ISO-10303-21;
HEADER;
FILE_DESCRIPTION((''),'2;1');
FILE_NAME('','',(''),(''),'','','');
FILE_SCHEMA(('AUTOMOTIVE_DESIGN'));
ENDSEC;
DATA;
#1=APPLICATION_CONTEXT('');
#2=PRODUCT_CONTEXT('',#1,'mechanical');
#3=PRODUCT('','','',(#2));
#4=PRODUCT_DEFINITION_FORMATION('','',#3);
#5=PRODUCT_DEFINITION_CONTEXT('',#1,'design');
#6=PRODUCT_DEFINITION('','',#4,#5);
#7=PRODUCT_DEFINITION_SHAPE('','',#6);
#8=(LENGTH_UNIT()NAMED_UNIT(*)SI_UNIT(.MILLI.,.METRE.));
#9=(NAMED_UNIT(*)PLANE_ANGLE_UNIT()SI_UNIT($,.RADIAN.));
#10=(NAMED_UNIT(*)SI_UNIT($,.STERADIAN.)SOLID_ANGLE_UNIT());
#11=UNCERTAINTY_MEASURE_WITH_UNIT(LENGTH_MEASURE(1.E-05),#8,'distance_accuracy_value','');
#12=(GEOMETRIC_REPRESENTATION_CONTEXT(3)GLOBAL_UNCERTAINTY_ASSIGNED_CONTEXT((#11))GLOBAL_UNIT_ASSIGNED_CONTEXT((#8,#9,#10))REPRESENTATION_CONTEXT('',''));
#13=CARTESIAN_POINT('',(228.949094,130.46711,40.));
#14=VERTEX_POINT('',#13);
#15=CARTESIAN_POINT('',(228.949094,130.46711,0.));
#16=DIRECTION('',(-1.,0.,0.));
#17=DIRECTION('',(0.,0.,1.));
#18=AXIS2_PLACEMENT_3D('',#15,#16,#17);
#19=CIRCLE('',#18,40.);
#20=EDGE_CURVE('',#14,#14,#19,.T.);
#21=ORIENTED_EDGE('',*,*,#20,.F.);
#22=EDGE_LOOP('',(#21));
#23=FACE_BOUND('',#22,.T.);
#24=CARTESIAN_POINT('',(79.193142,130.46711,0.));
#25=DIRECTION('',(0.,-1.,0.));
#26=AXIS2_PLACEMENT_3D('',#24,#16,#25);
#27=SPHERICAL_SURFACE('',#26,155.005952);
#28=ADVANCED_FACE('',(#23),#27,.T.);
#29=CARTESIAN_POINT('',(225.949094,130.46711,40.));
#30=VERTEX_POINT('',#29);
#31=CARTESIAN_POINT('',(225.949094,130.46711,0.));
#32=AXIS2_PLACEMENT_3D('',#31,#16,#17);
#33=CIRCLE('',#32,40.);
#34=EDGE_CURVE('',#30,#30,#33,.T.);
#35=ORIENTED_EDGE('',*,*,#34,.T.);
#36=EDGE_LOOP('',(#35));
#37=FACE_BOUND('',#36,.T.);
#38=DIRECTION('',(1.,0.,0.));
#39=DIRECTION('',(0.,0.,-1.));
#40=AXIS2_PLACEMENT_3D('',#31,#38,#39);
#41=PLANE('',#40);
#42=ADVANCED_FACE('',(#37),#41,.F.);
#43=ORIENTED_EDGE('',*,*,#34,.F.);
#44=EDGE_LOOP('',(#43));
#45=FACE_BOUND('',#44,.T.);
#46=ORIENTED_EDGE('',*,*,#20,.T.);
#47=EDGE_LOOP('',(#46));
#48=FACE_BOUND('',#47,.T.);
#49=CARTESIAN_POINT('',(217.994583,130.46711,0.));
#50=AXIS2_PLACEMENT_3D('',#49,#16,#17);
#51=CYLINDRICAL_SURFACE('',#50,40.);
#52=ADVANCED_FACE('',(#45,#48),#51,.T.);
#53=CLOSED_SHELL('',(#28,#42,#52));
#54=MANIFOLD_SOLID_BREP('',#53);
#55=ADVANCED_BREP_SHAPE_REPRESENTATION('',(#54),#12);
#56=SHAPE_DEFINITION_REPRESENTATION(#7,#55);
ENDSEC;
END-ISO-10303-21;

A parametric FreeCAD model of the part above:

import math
import FreeCAD as App
import Part
import Sketcher

V = App.Vector
Q = App.Units.Quantity

doc = App.newDocument("Part")
params = doc.addObject("Spreadsheet::Sheet", "Params")
for row, (alias, value) in enumerate([
    ("sketch1_width", "3 mm"),
    ("sketch1_height", "40 mm"),
    ("sketch1_width2", "8.25 mm"),
    ("revolution_angle", "360 deg"),
], start=1):
    params.set(f"A{row}", alias)
    params.set(f"B{row}", "=" + value)
    params.setAlias(f"B{row}", alias)

body = doc.addObject("PartDesign::Body", "Body")

# Sketch on XY plane
sketch1 = doc.addObject("Sketcher::SketchObject", "Sketch")
body.addObject(sketch1)
sketch1.AttachmentSupport = (doc.XY_Plane, [""])
sketch1.MapMode = "FlatFace"
sketch1.addGeometry(Part.LineSegment(V(225.9, 170.5, 0), V(225.9, 130.5, 0)), False)
sketch1.addGeometry(Part.LineSegment(V(225.9, 130.5, 0), V(234.2, 130.5, 0)), False)
sketch1.addGeometry(Part.ArcOfCircle(Part.Circle(V(79.2, 130.5, 0), V(0, 0, 1), 155), math.radians(0), math.radians(14.95)), False)
sketch1.addGeometry(Part.LineSegment(V(228.9, 170.5, 0), V(225.9, 170.5, 0)), False)
sketch1.addGeometry(Part.LineSegment(V(79.2, 130.5, 0), V(234.2, 130.5, 0)), True)  # axis
sketch1.addConstraint(Sketcher.Constraint("Coincident", 0, 2, 1, 1))
sketch1.addConstraint(Sketcher.Constraint("Coincident", 1, 2, 2, 1))
sketch1.addConstraint(Sketcher.Constraint("Coincident", 2, 2, 3, 1))
sketch1.addConstraint(Sketcher.Constraint("Coincident", 3, 2, 0, 1))
sketch1.addConstraint(Sketcher.Constraint("Vertical", 0))
sketch1.addConstraint(Sketcher.Constraint("Horizontal", 1))
sketch1.addConstraint(Sketcher.Constraint("Horizontal", 3))
sketch1.addConstraint(Sketcher.Constraint("Horizontal", 4))
sketch1.addConstraint(Sketcher.Constraint("Coincident", 4, 1, 2, 3))
sketch1.addConstraint(Sketcher.Constraint("Coincident", 4, 2, 1, 2))
sketch1.addConstraint(Sketcher.Constraint("DistanceX", 3, 2, 3, 1, Q("3 mm")))
sketch1.addConstraint(Sketcher.Constraint("DistanceY", 0, 2, 0, 1, Q("40 mm")))
sketch1.addConstraint(Sketcher.Constraint("DistanceX", 1, 1, 1, 2, Q("8.25 mm")))
sketch1.addConstraint(Sketcher.Constraint("DistanceX", -1, 1, 2, 3, Q("79.193142 mm")))
sketch1.addConstraint(Sketcher.Constraint("DistanceY", -1, 1, 2, 3, Q("130.46711 mm")))
sketch1.setExpression("Constraints[10]", "Params.sketch1_width")
sketch1.setExpression("Constraints[11]", "Params.sketch1_height")
sketch1.setExpression("Constraints[12]", "Params.sketch1_width2")
revolution = doc.addObject("PartDesign::Revolution", "Revolution")
body.addObject(revolution)
revolution.Profile = sketch1
revolution.ReferenceAxis = (sketch1, ["Axis0"])
revolution.setExpression("Angle", "Params.revolution_angle")

doc.recompute()
